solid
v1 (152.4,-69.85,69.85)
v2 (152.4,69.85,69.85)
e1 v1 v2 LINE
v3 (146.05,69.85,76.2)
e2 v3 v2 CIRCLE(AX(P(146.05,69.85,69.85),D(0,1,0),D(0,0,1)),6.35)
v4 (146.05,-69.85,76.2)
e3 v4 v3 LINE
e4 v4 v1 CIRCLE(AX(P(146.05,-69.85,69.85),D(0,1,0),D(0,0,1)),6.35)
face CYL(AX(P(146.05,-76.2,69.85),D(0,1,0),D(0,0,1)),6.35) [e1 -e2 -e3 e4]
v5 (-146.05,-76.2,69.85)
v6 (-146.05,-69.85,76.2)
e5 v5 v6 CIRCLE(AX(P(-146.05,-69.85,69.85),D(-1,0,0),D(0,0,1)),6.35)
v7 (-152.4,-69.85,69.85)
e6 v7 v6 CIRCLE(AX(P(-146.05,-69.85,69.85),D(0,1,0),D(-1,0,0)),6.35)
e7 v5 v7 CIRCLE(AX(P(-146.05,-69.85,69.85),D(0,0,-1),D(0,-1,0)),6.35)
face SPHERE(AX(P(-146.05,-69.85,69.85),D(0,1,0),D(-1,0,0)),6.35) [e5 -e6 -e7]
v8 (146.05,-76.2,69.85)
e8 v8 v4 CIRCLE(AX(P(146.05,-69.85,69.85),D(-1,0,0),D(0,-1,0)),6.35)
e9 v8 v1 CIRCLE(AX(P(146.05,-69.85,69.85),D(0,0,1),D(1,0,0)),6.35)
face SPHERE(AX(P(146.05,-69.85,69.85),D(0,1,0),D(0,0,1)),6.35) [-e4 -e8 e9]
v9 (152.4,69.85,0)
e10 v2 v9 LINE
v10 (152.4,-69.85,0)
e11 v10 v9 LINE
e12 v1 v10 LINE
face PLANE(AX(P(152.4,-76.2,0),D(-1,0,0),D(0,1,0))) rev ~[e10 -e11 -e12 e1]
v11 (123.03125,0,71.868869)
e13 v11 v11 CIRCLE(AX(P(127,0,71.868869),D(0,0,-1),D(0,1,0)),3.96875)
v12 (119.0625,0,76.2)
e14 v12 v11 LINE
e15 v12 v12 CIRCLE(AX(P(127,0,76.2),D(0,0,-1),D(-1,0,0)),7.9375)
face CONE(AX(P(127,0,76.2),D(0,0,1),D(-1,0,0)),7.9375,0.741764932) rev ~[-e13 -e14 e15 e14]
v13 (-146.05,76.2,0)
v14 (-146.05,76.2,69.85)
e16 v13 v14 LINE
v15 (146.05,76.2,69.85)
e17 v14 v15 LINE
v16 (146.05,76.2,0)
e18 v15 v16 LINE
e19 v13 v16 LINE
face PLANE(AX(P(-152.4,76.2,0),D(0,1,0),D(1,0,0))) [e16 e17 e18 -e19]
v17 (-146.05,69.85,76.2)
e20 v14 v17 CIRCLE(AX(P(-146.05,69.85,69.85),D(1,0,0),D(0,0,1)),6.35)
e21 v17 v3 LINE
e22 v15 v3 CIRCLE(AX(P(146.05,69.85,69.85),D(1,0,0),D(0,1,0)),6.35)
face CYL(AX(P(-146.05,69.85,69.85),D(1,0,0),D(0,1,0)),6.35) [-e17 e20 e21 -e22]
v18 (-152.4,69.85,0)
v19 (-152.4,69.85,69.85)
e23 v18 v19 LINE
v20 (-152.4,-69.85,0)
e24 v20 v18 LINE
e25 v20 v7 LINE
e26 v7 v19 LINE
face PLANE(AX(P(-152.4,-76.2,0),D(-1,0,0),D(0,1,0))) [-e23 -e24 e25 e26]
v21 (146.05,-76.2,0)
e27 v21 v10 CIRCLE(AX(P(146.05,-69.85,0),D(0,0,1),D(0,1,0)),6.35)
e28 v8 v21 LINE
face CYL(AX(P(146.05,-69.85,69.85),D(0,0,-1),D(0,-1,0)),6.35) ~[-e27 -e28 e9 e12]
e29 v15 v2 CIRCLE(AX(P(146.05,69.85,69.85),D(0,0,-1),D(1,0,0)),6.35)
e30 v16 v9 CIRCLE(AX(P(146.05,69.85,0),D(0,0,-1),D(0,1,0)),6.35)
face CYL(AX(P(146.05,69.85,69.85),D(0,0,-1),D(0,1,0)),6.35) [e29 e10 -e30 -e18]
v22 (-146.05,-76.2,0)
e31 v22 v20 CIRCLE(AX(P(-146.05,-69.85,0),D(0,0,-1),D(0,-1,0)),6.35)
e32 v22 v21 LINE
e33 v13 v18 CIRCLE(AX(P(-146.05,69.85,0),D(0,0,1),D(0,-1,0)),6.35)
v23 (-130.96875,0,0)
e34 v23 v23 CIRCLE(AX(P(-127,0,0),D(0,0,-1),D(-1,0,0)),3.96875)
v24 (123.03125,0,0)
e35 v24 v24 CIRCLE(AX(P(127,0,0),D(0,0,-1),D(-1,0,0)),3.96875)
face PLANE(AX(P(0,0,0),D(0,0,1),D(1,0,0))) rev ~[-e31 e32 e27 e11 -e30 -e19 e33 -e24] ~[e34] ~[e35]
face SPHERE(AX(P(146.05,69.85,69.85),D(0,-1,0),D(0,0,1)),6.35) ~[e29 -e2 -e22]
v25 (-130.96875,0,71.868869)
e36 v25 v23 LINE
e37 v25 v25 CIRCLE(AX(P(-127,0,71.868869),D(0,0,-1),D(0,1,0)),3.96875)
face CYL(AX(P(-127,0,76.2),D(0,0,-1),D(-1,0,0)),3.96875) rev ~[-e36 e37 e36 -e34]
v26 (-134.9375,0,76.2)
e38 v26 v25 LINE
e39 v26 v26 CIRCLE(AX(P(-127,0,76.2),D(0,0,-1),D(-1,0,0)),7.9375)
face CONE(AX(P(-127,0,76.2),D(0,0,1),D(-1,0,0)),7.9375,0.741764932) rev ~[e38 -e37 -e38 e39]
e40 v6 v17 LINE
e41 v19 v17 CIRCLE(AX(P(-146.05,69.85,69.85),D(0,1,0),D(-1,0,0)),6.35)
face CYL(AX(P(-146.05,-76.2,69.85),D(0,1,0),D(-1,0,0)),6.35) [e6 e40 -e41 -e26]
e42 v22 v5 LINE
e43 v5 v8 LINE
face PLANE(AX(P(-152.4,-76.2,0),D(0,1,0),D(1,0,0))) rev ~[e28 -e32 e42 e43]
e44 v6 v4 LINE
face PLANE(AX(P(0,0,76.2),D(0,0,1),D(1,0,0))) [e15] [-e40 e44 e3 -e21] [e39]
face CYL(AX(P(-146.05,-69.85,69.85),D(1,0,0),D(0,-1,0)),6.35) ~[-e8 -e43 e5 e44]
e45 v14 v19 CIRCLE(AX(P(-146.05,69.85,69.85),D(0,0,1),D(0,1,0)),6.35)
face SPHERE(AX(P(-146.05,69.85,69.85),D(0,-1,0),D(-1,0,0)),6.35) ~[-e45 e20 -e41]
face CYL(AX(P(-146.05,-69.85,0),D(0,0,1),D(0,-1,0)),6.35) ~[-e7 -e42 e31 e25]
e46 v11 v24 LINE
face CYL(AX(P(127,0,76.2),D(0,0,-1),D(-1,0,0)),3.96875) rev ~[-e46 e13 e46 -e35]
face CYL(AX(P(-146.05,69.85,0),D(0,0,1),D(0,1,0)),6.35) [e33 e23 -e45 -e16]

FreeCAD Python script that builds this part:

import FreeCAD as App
import Part
import Sketcher

V = App.Vector
Q = App.Units.Quantity


def edges_at(feature, points):
    """Names of the edges that pass closest to the given points."""
    edges = feature.Shape.Edges
    near = lambda p: min(range(len(edges)), key=lambda i: edges[i].distToShape(Part.Vertex(*p))[0])
    return sorted({f"Edge{near(p) + 1}" for p in points})

doc = App.newDocument("Part")
body = doc.addObject("PartDesign::Body", "Body")

# Sketch on XY plane
sketch1 = body.newObject("Sketcher::SketchObject", "Sketch")
sketch1.AttachmentSupport = (doc.getObject("XY_Plane"), [""])
sketch1.MapMode = "FlatFace"
sketch1.addGeometry(Part.LineSegment(V(-152.4, 76.2, 0), V(-152.4, -76.2, 0)), False)
sketch1.addGeometry(Part.LineSegment(V(-152.4, -76.2, 0), V(152.4, -76.2, 0)), False)
sketch1.addGeometry(Part.LineSegment(V(152.4, -76.2, 0), V(152.4, 76.2, 0)), False)
sketch1.addGeometry(Part.LineSegment(V(152.4, 76.2, 0), V(-152.4, 76.2, 0)), False)
sketch1.addConstraint(Sketcher.Constraint("Coincident", 0, 2, 1, 1))
sketch1.addConstraint(Sketcher.Constraint("Coincident", 1, 2, 2, 1))
sketch1.addConstraint(Sketcher.Constraint("Coincident", 2, 2, 3, 1))
sketch1.addConstraint(Sketcher.Constraint("Coincident", 3, 2, 0, 1))
sketch1.addConstraint(Sketcher.Constraint("Vertical", 0))
sketch1.addConstraint(Sketcher.Constraint("Horizontal", 1))
sketch1.addConstraint(Sketcher.Constraint("Vertical", 2))
sketch1.addConstraint(Sketcher.Constraint("Horizontal", 3))
sketch1.addConstraint(Sketcher.Constraint("Symmetric", 0, 2, 2, 2, -1, 1))
sketch1.addConstraint(Sketcher.Constraint("DistanceX", 1, 1, 1, 2, Q("12 in")))
sketch1.addConstraint(Sketcher.Constraint("DistanceY", 0, 2, 0, 1, Q("6 in")))
pad1 = body.newObject("PartDesign::Pad", "Pad")
pad1.Profile = sketch1
pad1.Length = Q("3 in")

# Sketch on XY plane
sketch2 = body.newObject("Sketcher::SketchObject", "Sketch001")
sketch2.AttachmentSupport = (doc.getObject("XY_Plane"), [""])
sketch2.MapMode = "FlatFace"
sketch2.AttachmentOffset = App.Placement(V(0, 0, 3 * 25.4), App.Rotation())
sketch2.addGeometry(Part.Circle(V(-127, 0, 0), V(0, 0, 1), 3.96875), False)
sketch2.addGeometry(Part.Circle(V(127, 0, 0), V(0, 0, 1), 3.96875), False)
sketch2.addConstraint(Sketcher.Constraint("Equal", 0, 1))
sketch2.addConstraint(Sketcher.Constraint("Symmetric", 0, 3, 1, 3, -1, 1))
sketch2.addConstraint(Sketcher.Constraint("PointOnObject", 0, 3, -1))
sketch2.addConstraint(Sketcher.Constraint("Diameter", 0, Q("0.3125 in")))
sketch2.addConstraint(Sketcher.Constraint("DistanceX", 0, 3, -1, 1, Q("5 in")))
doc.recompute()
hole = body.newObject("PartDesign::Hole", "Hole")
hole.Profile = sketch2
hole.ThreadType = "None"
hole.Diameter = Q("0.3125 in")
hole.DepthType = "ThroughAll"
hole.HoleCutType = "Countersink"
hole.HoleCutDiameter = Q("0.625 in")
hole.HoleCutCountersinkAngle = 85
doc.recompute()

fillet = body.newObject("PartDesign::Fillet", "Fillet")
fillet.Base = (hole, edges_at(hole, [(-152.4, 0, 76.2), (152.4, 0, 76.2)]))
fillet.Radius = Q("0.25 in")
doc.recompute()

fillet2 = body.newObject("PartDesign::Fillet", "Fillet001")
fillet2.Base = (fillet, edges_at(fillet, [(0, -76.2, 76.2), (0, 76.2, 76.2)]))
fillet2.Radius = Q("0.25 in")

doc.recompute()
